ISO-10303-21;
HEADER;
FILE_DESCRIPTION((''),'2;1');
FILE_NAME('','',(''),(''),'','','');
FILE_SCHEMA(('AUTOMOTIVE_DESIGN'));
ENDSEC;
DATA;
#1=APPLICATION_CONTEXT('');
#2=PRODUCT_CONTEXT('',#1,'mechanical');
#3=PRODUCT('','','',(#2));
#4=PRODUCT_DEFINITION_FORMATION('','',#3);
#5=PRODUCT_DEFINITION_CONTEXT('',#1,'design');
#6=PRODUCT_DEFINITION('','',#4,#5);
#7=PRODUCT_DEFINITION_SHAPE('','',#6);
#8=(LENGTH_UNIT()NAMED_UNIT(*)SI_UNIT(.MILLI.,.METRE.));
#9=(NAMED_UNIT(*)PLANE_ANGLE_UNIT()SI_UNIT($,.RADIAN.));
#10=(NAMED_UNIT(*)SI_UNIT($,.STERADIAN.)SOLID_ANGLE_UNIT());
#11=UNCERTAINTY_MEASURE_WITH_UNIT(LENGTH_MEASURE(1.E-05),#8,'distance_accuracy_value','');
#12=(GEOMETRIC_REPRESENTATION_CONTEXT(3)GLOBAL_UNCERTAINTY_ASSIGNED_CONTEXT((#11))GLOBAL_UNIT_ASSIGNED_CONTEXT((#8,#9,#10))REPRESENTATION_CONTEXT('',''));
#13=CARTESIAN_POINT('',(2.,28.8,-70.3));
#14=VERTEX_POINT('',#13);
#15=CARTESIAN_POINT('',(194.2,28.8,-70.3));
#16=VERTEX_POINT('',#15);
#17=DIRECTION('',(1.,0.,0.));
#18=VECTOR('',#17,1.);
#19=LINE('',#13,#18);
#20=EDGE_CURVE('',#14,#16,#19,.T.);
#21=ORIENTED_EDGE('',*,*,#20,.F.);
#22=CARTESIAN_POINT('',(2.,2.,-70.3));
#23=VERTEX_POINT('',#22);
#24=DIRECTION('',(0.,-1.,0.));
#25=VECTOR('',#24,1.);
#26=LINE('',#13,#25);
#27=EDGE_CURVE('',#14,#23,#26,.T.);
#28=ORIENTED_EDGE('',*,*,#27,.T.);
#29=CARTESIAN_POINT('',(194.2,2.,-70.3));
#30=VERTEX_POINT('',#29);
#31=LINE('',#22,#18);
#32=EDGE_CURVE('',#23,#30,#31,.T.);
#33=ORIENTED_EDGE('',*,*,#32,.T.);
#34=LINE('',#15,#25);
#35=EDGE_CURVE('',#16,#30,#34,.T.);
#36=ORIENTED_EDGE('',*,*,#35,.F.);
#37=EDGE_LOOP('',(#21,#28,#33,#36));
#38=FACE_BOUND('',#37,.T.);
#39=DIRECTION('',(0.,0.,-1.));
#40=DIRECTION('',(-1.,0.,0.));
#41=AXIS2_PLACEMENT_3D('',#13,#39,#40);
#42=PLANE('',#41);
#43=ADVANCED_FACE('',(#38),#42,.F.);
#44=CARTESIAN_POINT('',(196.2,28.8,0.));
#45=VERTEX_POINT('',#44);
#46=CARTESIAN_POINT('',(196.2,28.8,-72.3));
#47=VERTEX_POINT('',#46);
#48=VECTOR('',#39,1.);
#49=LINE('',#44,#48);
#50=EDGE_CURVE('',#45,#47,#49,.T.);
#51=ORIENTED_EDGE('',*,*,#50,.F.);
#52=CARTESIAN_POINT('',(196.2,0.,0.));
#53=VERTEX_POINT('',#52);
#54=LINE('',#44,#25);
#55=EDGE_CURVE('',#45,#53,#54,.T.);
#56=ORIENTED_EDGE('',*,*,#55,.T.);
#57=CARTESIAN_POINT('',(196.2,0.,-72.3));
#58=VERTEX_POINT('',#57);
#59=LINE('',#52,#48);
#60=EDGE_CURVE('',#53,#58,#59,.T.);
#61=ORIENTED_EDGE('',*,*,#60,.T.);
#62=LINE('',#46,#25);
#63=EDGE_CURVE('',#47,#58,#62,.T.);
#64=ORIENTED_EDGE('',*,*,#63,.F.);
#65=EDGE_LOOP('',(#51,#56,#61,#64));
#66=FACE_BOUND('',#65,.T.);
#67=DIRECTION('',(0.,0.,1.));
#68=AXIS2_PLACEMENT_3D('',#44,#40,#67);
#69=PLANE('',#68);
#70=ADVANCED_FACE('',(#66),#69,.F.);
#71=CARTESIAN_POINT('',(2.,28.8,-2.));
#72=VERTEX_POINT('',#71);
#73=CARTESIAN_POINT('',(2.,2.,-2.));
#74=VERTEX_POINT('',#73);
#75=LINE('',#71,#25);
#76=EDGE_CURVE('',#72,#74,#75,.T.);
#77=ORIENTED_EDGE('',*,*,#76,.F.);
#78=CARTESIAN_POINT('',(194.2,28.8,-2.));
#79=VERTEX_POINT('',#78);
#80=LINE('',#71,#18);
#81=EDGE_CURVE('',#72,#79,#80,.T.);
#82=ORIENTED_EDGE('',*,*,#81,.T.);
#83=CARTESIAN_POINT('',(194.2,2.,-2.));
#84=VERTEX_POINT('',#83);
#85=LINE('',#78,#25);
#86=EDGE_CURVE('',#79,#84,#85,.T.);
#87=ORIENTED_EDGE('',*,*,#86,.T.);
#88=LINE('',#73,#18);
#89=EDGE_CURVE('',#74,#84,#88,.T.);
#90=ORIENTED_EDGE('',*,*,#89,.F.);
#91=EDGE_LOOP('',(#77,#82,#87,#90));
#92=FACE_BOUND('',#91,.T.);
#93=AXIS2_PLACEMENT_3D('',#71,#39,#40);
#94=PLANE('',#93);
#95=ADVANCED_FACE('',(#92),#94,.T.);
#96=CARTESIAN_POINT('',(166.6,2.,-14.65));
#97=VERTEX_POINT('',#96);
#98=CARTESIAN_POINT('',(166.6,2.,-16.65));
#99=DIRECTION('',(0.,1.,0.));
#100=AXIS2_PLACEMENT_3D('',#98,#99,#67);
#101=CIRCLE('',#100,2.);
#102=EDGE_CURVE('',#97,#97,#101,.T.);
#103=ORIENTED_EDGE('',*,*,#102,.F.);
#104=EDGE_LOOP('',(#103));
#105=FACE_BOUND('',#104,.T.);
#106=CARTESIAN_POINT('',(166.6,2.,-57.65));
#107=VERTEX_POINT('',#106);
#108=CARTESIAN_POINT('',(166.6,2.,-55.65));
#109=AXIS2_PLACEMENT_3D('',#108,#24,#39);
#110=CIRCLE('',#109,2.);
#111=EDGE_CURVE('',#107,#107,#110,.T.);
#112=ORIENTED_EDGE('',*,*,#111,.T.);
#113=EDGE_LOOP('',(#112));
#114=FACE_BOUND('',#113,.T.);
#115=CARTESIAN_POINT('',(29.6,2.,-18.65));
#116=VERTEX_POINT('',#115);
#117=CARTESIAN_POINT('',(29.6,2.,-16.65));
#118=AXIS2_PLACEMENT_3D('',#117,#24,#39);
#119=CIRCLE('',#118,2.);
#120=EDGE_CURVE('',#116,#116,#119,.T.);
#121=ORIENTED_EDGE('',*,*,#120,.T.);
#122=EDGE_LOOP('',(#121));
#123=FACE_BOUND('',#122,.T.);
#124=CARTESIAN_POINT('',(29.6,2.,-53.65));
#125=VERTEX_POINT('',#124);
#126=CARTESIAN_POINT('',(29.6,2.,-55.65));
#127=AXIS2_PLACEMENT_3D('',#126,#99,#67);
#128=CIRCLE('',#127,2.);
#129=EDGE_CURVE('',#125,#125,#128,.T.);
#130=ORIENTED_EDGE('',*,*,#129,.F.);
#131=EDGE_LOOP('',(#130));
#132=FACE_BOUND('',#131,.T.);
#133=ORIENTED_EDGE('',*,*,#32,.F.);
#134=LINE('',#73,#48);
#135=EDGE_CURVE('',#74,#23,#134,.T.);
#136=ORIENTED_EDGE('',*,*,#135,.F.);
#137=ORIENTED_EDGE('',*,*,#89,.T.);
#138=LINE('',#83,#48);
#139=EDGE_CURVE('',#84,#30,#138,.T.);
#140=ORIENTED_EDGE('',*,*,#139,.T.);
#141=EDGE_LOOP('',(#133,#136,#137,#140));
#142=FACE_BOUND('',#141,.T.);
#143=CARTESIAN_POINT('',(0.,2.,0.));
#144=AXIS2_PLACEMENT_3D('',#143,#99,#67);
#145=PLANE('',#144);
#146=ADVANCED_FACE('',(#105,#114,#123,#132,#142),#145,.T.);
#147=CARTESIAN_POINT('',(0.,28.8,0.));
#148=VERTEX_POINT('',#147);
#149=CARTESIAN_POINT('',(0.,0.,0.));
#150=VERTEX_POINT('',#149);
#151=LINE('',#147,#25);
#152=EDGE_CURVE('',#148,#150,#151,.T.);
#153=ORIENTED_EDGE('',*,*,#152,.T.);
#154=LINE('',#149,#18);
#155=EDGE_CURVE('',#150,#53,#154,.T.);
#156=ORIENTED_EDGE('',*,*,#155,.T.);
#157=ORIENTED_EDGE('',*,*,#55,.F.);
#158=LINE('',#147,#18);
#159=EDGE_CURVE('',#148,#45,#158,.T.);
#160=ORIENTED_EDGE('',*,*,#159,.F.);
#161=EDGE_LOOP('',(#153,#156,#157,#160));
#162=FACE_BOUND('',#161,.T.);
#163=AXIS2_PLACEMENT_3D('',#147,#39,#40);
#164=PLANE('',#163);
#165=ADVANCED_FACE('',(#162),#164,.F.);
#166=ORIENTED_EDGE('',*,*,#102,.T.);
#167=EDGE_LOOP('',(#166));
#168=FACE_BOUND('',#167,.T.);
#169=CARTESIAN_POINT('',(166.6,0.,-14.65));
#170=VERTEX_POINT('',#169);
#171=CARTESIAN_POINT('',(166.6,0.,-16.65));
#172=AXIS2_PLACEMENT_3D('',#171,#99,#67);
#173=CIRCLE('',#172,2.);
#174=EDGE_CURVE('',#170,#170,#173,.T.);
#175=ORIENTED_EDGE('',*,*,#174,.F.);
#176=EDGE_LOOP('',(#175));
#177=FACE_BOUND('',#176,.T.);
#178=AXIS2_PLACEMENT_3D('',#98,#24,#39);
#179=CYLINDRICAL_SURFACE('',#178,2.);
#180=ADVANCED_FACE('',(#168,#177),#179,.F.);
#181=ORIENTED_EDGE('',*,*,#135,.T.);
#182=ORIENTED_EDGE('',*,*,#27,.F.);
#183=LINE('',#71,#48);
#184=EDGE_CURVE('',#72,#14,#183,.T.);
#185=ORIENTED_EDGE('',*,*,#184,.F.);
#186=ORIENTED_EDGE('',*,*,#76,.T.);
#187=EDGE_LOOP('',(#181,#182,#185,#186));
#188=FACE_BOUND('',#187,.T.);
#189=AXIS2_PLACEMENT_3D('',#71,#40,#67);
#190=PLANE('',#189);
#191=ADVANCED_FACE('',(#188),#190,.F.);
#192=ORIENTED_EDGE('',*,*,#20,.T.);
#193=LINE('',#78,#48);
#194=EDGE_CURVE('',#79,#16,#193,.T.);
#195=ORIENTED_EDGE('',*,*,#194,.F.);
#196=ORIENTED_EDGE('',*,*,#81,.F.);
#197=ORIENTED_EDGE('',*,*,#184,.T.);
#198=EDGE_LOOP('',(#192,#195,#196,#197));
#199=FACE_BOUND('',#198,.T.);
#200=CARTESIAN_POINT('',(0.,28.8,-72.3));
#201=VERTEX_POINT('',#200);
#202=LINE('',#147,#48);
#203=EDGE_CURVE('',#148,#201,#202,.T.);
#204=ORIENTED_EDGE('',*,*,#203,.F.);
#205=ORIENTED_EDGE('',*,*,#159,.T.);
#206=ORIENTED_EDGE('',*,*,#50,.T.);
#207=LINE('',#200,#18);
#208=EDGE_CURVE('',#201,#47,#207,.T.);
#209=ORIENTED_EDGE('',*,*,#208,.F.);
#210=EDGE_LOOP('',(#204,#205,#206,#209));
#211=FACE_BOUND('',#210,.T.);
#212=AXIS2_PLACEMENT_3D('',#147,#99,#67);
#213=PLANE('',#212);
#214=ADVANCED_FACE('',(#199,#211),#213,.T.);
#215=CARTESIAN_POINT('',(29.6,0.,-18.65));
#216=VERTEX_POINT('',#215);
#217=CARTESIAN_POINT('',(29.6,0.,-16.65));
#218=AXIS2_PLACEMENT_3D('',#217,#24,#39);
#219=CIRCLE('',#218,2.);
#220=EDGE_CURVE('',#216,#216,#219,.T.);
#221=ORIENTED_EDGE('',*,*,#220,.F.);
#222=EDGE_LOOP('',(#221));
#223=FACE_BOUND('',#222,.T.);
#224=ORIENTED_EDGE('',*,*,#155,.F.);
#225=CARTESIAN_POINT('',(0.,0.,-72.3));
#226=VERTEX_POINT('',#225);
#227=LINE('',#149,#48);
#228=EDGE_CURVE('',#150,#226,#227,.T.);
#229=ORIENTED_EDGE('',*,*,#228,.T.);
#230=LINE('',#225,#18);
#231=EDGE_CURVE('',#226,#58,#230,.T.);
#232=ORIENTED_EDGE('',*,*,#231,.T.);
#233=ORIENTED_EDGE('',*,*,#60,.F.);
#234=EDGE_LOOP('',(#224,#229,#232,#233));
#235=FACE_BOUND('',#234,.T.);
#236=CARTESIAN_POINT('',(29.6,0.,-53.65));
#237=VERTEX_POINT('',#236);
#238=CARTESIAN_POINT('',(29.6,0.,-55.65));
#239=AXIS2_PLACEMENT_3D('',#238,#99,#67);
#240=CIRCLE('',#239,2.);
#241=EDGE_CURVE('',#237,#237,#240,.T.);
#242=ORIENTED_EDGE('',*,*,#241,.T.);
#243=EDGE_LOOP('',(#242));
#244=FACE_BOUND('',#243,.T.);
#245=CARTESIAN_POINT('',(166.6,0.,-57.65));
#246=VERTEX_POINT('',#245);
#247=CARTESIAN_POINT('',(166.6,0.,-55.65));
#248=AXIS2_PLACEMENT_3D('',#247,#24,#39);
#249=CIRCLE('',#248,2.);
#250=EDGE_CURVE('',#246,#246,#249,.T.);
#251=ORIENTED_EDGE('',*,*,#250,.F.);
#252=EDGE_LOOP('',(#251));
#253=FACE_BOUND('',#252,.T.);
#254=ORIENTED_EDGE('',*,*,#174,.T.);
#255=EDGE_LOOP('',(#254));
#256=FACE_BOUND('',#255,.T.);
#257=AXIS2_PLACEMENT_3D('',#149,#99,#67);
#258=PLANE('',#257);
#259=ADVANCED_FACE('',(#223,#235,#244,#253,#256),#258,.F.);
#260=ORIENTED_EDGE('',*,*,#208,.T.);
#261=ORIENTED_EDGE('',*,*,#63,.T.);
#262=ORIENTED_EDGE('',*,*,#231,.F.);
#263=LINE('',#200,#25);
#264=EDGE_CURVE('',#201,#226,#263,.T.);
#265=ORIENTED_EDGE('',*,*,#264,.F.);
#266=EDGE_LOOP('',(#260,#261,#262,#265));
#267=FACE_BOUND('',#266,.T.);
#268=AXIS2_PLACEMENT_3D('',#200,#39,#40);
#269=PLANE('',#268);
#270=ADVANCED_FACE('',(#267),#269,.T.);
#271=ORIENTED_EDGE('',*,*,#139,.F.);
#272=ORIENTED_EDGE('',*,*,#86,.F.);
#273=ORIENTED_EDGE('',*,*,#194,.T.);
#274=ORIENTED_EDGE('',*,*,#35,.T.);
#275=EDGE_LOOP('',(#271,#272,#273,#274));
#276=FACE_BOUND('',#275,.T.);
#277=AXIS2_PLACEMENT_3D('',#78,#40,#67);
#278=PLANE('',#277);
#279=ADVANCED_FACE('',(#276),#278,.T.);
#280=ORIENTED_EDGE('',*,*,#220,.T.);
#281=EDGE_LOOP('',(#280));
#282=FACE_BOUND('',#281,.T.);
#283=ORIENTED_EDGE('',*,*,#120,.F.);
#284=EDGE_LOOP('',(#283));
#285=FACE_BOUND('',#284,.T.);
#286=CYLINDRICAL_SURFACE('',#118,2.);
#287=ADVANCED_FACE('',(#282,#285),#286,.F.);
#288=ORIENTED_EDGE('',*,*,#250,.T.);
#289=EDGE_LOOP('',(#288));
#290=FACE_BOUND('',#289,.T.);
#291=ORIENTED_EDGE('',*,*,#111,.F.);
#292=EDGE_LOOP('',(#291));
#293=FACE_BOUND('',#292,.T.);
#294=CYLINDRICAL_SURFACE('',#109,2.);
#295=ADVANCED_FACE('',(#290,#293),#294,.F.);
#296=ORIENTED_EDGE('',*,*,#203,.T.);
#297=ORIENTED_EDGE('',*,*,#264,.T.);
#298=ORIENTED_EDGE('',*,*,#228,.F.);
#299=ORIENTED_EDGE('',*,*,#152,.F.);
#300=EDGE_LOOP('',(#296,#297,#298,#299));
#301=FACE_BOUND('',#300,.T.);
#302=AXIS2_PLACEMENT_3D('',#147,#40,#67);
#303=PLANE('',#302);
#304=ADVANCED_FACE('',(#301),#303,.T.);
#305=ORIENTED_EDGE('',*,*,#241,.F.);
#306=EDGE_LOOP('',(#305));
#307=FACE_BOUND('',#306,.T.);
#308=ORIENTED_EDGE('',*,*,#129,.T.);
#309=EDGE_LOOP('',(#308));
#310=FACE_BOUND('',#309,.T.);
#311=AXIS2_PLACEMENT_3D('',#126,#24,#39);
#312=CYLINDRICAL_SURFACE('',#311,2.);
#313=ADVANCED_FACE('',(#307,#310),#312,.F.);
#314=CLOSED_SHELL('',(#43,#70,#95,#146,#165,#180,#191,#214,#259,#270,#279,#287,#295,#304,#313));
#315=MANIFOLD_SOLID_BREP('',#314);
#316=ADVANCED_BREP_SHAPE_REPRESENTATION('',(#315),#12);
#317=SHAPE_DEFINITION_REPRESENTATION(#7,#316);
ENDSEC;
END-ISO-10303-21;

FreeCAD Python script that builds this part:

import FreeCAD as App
import Part
import Sketcher
from FreeCAD import Vector

doc = App.newDocument("Part")
body = doc.addObject("PartDesign::Body", "Body")

# Sketch on XZ plane
sketch1 = doc.addObject("Sketcher::SketchObject", "Sketch")
body.addObject(sketch1)
sketch1.AttachmentSupport = (doc.XZ_Plane, [""])
sketch1.MapMode = "FlatFace"
sketch1.addGeometry([
    Part.LineSegment(Vector(0, -72, 0), Vector(0, 0, 0)),  # 0
    Part.LineSegment(Vector(0, 0, 0), Vector(196, 0, 0)),  # 1
    Part.LineSegment(Vector(196, 0, 0), Vector(196, -72, 0)),  # 2
    Part.LineSegment(Vector(196, -72, 0), Vector(0, -72, 0)),  # 3
    Part.LineSegment(Vector(194, -2, 0), Vector(2, -2, 0)),  # 4
    Part.LineSegment(Vector(2, -2, 0), Vector(2, -70, 0)),  # 5
    Part.LineSegment(Vector(2, -70, 0), Vector(194, -70, 0)),  # 6
    Part.LineSegment(Vector(194, -70, 0), Vector(194, -2, 0)),  # 7
], False)
sketch1.addConstraint([
    Sketcher.Constraint("Coincident", 0, 2, 1, 1),
    Sketcher.Constraint("Coincident", 1, 2, 2, 1),
    Sketcher.Constraint("Coincident", 2, 2, 3, 1),
    Sketcher.Constraint("Coincident", 3, 2, 0, 1),
    Sketcher.Constraint("Coincident", 4, 2, 5, 1),
    Sketcher.Constraint("Coincident", 5, 2, 6, 1),
    Sketcher.Constraint("Coincident", 6, 2, 7, 1),
    Sketcher.Constraint("Coincident", 7, 2, 4, 1),
    Sketcher.Constraint("Vertical", 0),
    Sketcher.Constraint("Horizontal", 1),
    Sketcher.Constraint("Vertical", 2),
    Sketcher.Constraint("Horizontal", 3),
    Sketcher.Constraint("Horizontal", 4),
    Sketcher.Constraint("Vertical", 5),
    Sketcher.Constraint("Horizontal", 6),
    Sketcher.Constraint("Vertical", 7),
    Sketcher.Constraint("Coincident", 0, 2, -1, 1),
    Sketcher.Constraint("DistanceX", 1, 1, 1, 2, 196.2),
    Sketcher.Constraint("DistanceX", 4, 2, 4, 1, 192.2),
    Sketcher.Constraint("DistanceY", 0, 1, 0, 2, 72.3),
    Sketcher.Constraint("DistanceY", 5, 2, 5, 1, 68.3),
    Sketcher.Constraint("DistanceX", -1, 1, 4, 2, 2.0),
    Sketcher.Constraint("DistanceY", 4, 2, -1, 1, 2.0),
])
pad1 = doc.addObject("PartDesign::Pad", "Pad")
body.addObject(pad1)
pad1.Profile = sketch1
pad1.Length = 28.8
pad1.Reversed = True

# Sketch on XZ plane
sketch2 = doc.addObject("Sketcher::SketchObject", "Sketch001")
body.addObject(sketch2)
sketch2.AttachmentSupport = (doc.XZ_Plane, [""])
sketch2.MapMode = "FlatFace"
sketch2.addGeometry([
    Part.LineSegment(Vector(2, -70.3, 0), Vector(2, -2, 0)),  # 0
    Part.LineSegment(Vector(2, -2, 0), Vector(194.2, -2, 0)),  # 1
    Part.LineSegment(Vector(194.2, -2, 0), Vector(194.2, -70.3, 0)),  # 2
    Part.LineSegment(Vector(194.2, -70.3, 0), Vector(2, -70.3, 0)),  # 3
    Part.Circle(Vector(29.6, -16.6, 0), Vector(0, 0, 1), 2),  # 4
    Part.Circle(Vector(166.6, -16.6, 0), Vector(0, 0, 1), 2),  # 5
    Part.Circle(Vector(29.6, -55.6, 0), Vector(0, 0, 1), 2),  # 6
    Part.Circle(Vector(166.6, -55.6, 0), Vector(0, 0, 1), 2),  # 7
], False)
sketch2.addConstraint([
    Sketcher.Constraint("Coincident", 0, 2, 1, 1),
    Sketcher.Constraint("Coincident", 1, 2, 2, 1),
    Sketcher.Constraint("Coincident", 2, 2, 3, 1),
    Sketcher.Constraint("Coincident", 3, 2, 0, 1),
    Sketcher.Constraint("Vertical", 0),
    Sketcher.Constraint("Horizontal", 1),
    Sketcher.Constraint("Vertical", 2),
    Sketcher.Constraint("Horizontal", 3),
    Sketcher.Constraint("Equal", 4, 5),
    Sketcher.Constraint("Equal", 5, 6),
    Sketcher.Constraint("Equal", 6, 7),
    Sketcher.Constraint("Horizontal", 4, 3, 5, 3),
    Sketcher.Constraint("Horizontal", 6, 3, 7, 3),
    Sketcher.Constraint("Vertical", 4, 3, 6, 3),
    Sketcher.Constraint("Vertical", 5, 3, 7, 3),
    Sketcher.Constraint("Diameter", 4, 4.0),
    Sketcher.Constraint("DistanceX", 1, 1, 1, 2, 192.2),
    Sketcher.Constraint("DistanceY", 0, 1, 0, 2, 68.3),
    Sketcher.Constraint("DistanceX", -1, 1, 0, 2, 2.0),
    Sketcher.Constraint("DistanceY", 0, 2, -1, 1, 2.0),
    Sketcher.Constraint("DistanceX", 4, 3, 5, 3, 137.0),
    Sketcher.Constraint("DistanceY", 6, 3, 4, 3, 39.0),
    Sketcher.Constraint("DistanceX", -1, 1, 4, 3, 29.6),
    Sketcher.Constraint("DistanceY", 4, 3, -1, 1, 16.65),
])
pad2 = doc.addObject("PartDesign::Pad", "Pad001")
body.addObject(pad2)
pad2.Profile = sketch2
pad2.Length = 2
pad2.Reversed = True

doc.recompute()
